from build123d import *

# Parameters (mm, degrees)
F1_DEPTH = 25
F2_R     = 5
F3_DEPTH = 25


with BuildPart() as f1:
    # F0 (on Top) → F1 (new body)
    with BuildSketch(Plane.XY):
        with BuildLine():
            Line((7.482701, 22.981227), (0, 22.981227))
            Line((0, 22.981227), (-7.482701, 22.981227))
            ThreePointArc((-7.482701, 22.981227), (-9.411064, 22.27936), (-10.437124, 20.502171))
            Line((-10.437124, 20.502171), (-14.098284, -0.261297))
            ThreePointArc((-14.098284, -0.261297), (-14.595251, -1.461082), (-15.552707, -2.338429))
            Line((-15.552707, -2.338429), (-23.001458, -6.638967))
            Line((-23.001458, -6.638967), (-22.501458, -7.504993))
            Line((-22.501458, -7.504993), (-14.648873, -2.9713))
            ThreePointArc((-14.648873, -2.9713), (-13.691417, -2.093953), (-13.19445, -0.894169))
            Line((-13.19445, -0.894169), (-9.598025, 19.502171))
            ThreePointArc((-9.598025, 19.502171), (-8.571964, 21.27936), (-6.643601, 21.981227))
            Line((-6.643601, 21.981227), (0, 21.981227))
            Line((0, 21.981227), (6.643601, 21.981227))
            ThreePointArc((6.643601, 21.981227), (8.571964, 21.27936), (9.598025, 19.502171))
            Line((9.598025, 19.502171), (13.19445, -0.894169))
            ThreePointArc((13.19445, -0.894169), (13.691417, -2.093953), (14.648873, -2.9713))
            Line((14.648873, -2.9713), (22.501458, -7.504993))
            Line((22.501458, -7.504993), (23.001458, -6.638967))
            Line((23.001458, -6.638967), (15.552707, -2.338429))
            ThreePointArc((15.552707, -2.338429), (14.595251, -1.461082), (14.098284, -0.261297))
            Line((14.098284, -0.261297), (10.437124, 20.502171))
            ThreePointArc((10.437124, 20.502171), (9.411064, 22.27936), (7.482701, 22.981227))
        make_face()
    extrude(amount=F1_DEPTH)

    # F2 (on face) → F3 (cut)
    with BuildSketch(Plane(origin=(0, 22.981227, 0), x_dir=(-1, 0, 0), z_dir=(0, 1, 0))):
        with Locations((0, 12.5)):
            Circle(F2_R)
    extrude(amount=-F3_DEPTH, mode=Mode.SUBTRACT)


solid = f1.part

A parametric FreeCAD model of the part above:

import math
import FreeCAD as App
import Part
import Sketcher
Q = App.Units.Quantity

doc = App.newDocument("Part")
body = doc.addObject("PartDesign::Body", "Body")

# Sketch on XY plane
sketch1 = doc.addObject("Sketcher::SketchObject", "Sketch")
body.addObject(sketch1)
sketch1.AttachmentSupport = (doc.XY_Plane, [""])
sketch1.MapMode = "FlatFace"
sketch1.addGeometry(Part.LineSegment(App.Vector(7.5, 23, 0), App.Vector(-7.5, 23, 0)), False)
sketch1.addGeometry(Part.ArcOfCircle(Part.Circle(App.Vector(-7.5, 20, 0), App.Vector(0, 0, 1), 3), math.radians(90), math.radians(170)), False)
sketch1.addGeometry(Part.LineSegment(App.Vector(-10.4, 20.5, 0), App.Vector(-14.1, -0.3, 0)), False)
sketch1.addGeometry(Part.ArcOfCircle(Part.Circle(App.Vector(-17.1, 0.3, 0), App.Vector(0, 0, 1), 3), math.radians(-60), math.radians(-10)), False)
sketch1.addGeometry(Part.LineSegment(App.Vector(-15.6, -2.3, 0), App.Vector(-23, -6.6, 0)), False)
sketch1.addGeometry(Part.LineSegment(App.Vector(-23, -6.6, 0), App.Vector(-22.5, -7.5, 0)), False)
sketch1.addGeometry(Part.LineSegment(App.Vector(-22.5, -7.5, 0), App.Vector(-14.6, -3, 0)), False)
sketch1.addGeometry(Part.ArcOfCircle(Part.Circle(App.Vector(-16.1, -0.4, 0), App.Vector(0, 0, 1), 3), math.radians(-60), math.radians(-10)), False)
sketch1.addGeometry(Part.LineSegment(App.Vector(-13.2, -0.9, 0), App.Vector(-9.6, 19.5, 0)), False)
sketch1.addGeometry(Part.ArcOfCircle(Part.Circle(App.Vector(-6.6, 19, 0), App.Vector(0, 0, 1), 3), math.radians(90), math.radians(170)), False)
sketch1.addGeometry(Part.LineSegment(App.Vector(-6.6, 22, 0), App.Vector(6.6, 22, 0)), False)
sketch1.addGeometry(Part.ArcOfCircle(Part.Circle(App.Vector(6.6, 19, 0), App.Vector(0, 0, 1), 3), math.radians(10), math.radians(90)), False)
sketch1.addGeometry(Part.LineSegment(App.Vector(9.6, 19.5, 0), App.Vector(13.2, -0.9, 0)), False)
sketch1.addGeometry(Part.ArcOfCircle(Part.Circle(App.Vector(16.1, -0.4, 0), App.Vector(0, 0, 1), 3), math.radians(-170), math.radians(-120)), False)
sketch1.addGeometry(Part.LineSegment(App.Vector(14.6, -3, 0), App.Vector(22.5, -7.5, 0)), False)
sketch1.addGeometry(Part.LineSegment(App.Vector(22.5, -7.5, 0), App.Vector(23, -6.6, 0)), False)
sketch1.addGeometry(Part.LineSegment(App.Vector(23, -6.6, 0), App.Vector(15.6, -2.3, 0)), False)
sketch1.addGeometry(Part.ArcOfCircle(Part.Circle(App.Vector(17.1, 0.3, 0), App.Vector(0, 0, 1), 3), math.radians(-170), math.radians(-120)), False)
sketch1.addGeometry(Part.LineSegment(App.Vector(14.1, -0.3, 0), App.Vector(10.4, 20.5, 0)), False)
sketch1.addGeometry(Part.ArcOfCircle(Part.Circle(App.Vector(7.5, 20, 0), App.Vector(0, 0, 1), 3), math.radians(10), math.radians(90)), False)
sketch1.addConstraint(Sketcher.Constraint("Tangent", 0, 2, 1, 1))
sketch1.addConstraint(Sketcher.Constraint("Tangent", 1, 2, 2, 1))
sketch1.addConstraint(Sketcher.Constraint("Tangent", 2, 2, 3, 2))
sketch1.addConstraint(Sketcher.Constraint("Tangent", 3, 1, 4, 1))
sketch1.addConstraint(Sketcher.Constraint("Coincident", 4, 2, 5, 1))
sketch1.addConstraint(Sketcher.Constraint("Coincident", 5, 2, 6, 1))
sketch1.addConstraint(Sketcher.Constraint("Tangent", 6, 2, 7, 1))
sketch1.addConstraint(Sketcher.Constraint("Tangent", 7, 2, 8, 1))
sketch1.addConstraint(Sketcher.Constraint("Tangent", 8, 2, 9, 2))
sketch1.addConstraint(Sketcher.Constraint("Tangent", 9, 1, 10, 1))
sketch1.addConstraint(Sketcher.Constraint("Tangent", 10, 2, 11, 2))
sketch1.addConstraint(Sketcher.Constraint("Tangent", 11, 1, 12, 1))
sketch1.addConstraint(Sketcher.Constraint("Tangent", 12, 2, 13, 1))
sketch1.addConstraint(Sketcher.Constraint("Tangent", 13, 2, 14, 1))
sketch1.addConstraint(Sketcher.Constraint("Coincident", 14, 2, 15, 1))
sketch1.addConstraint(Sketcher.Constraint("Coincident", 15, 2, 16, 1))
sketch1.addConstraint(Sketcher.Constraint("Tangent", 16, 2, 17, 2))
sketch1.addConstraint(Sketcher.Constraint("Tangent", 17, 1, 18, 1))
sketch1.addConstraint(Sketcher.Constraint("Tangent", 18, 2, 19, 1))
sketch1.addConstraint(Sketcher.Constraint("Tangent", 19, 2, 0, 1))
sketch1.addConstraint(Sketcher.Constraint("Horizontal", 0))
sketch1.addConstraint(Sketcher.Constraint("Horizontal", 10))
sketch1.addConstraint(Sketcher.Constraint("Equal", 1, 3))
sketch1.addConstraint(Sketcher.Constraint("Equal", 3, 7))
sketch1.addConstraint(Sketcher.Constraint("Equal", 7, 9))
sketch1.addConstraint(Sketcher.Constraint("Equal", 9, 11))
sketch1.addConstraint(Sketcher.Constraint("Equal", 11, 13))
sketch1.addConstraint(Sketcher.Constraint("Equal", 13, 17))
sketch1.addConstraint(Sketcher.Constraint("Equal", 17, 19))
sketch1.addConstraint(Sketcher.Constraint("Symmetric", 7, 3, 13, 3, -2))
sketch1.addConstraint(Sketcher.Constraint("Symmetric", 3, 3, 17, 3, -2))
sketch1.addConstraint(Sketcher.Constraint("Symmetric", 5, 2, 14, 2, -2))
sketch1.addConstraint(Sketcher.Constraint("Symmetric", 4, 2, 15, 2, -2))
sketch1.addConstraint(Sketcher.Constraint("Perpendicular", 4, 5))
sketch1.addConstraint(Sketcher.Constraint("Perpendicular", 5, 6))
sketch1.addConstraint(Sketcher.Constraint("Parallel", 2, 8))
sketch1.addConstraint(Sketcher.Constraint("Parallel", 12, 18))
sketch1.addConstraint(Sketcher.Constraint("Horizontal", 8, 2, 11, 1))
sketch1.addConstraint(Sketcher.Constraint("Radius", 1, 3.0))
sketch1.addConstraint(Sketcher.Constraint("Angle", 2, Q("-100.000001 deg")))
sketch1.addConstraint(Sketcher.Constraint("Angle", 4, Q("-150.000002 deg")))
sketch1.addConstraint(Sketcher.Constraint("Distance", 5, 1.000001))
sketch1.addConstraint(Sketcher.Constraint("DistanceY", 9, 3, 0, 2, 4.000002))
sketch1.addConstraint(Sketcher.Constraint("DistanceX", 0, 2, 0, 1, 14.965402))
sketch1.addConstraint(Sketcher.Constraint("DistanceX", 9, 3, -1, 1, 6.6436))
sketch1.addConstraint(Sketcher.Constraint("DistanceY", 6, 2, -1, 1, 2.9713))
sketch1.addConstraint(Sketcher.Constraint("DistanceY", 3, 1, 1, 2, 22.8406))
sketch1.addConstraint(Sketcher.Constraint("DistanceY", 15, 2, 12, 2, 5.744798))
pad1 = doc.addObject("PartDesign::Pad", "Pad")
body.addObject(pad1)
pad1.Profile = sketch1
pad1.Length = 25

# Sketch on XZ plane
sketch2 = doc.addObject("Sketcher::SketchObject", "Sketch001")
body.addObject(sketch2)
sketch2.AttachmentSupport = (doc.XZ_Plane, [""])
sketch2.MapMode = "FlatFace"
sketch2.AttachmentOffset = App.Placement(App.Vector(0, 0, -22.981227), App.Rotation())
sketch2.addGeometry(Part.Circle(App.Vector(0, 12, 0), App.Vector(0, 0, 1), 5), False)
sketch2.addConstraint(Sketcher.Constraint("PointOnObject", 0, 3, -2))
sketch2.addConstraint(Sketcher.Constraint("Diameter", 0, 10.0))
sketch2.addConstraint(Sketcher.Constraint("DistanceY", -1, 1, 0, 3, 12.5))
pocket1 = doc.addObject("PartDesign::Pocket", "Pocket")
body.addObject(pocket1)
pocket1.Profile = sketch2
pocket1.Length = 25
pocket1.Reversed = True

doc.recompute()
